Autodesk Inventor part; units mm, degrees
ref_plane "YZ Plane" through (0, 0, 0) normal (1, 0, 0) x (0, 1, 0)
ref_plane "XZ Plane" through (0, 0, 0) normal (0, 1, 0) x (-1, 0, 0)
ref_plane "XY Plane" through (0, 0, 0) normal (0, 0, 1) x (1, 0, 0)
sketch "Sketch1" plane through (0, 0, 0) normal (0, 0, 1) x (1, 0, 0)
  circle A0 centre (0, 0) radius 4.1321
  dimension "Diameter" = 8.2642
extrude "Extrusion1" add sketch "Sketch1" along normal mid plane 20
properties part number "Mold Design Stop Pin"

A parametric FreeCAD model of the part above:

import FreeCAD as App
import Part
import Sketcher

V = App.Vector
Q = App.Units.Quantity

doc = App.newDocument("Part")
body = doc.addObject("PartDesign::Body", "Body")

sketch1 = body.newObject("Sketcher::SketchObject", "Sketch")
sketch1.AttachmentSupport = (doc.getObject("XY_Plane"), [""])
sketch1.MapMode = "FlatFace"
sketch1.addGeometry(Part.Circle(V(0, 0, 0), V(0, 0, 1), 4.1), False)
sketch1.addConstraint([
    Sketcher.Constraint("Coincident", 0, 3, -1, 1),
    Sketcher.Constraint("Diameter", 0, Q("8.2642 mm")),
])
pad1 = body.newObject("PartDesign::Pad", "Pad")
pad1.Profile = sketch1
pad1.Length = 20
pad1.Midplane = True

doc.recompute()
